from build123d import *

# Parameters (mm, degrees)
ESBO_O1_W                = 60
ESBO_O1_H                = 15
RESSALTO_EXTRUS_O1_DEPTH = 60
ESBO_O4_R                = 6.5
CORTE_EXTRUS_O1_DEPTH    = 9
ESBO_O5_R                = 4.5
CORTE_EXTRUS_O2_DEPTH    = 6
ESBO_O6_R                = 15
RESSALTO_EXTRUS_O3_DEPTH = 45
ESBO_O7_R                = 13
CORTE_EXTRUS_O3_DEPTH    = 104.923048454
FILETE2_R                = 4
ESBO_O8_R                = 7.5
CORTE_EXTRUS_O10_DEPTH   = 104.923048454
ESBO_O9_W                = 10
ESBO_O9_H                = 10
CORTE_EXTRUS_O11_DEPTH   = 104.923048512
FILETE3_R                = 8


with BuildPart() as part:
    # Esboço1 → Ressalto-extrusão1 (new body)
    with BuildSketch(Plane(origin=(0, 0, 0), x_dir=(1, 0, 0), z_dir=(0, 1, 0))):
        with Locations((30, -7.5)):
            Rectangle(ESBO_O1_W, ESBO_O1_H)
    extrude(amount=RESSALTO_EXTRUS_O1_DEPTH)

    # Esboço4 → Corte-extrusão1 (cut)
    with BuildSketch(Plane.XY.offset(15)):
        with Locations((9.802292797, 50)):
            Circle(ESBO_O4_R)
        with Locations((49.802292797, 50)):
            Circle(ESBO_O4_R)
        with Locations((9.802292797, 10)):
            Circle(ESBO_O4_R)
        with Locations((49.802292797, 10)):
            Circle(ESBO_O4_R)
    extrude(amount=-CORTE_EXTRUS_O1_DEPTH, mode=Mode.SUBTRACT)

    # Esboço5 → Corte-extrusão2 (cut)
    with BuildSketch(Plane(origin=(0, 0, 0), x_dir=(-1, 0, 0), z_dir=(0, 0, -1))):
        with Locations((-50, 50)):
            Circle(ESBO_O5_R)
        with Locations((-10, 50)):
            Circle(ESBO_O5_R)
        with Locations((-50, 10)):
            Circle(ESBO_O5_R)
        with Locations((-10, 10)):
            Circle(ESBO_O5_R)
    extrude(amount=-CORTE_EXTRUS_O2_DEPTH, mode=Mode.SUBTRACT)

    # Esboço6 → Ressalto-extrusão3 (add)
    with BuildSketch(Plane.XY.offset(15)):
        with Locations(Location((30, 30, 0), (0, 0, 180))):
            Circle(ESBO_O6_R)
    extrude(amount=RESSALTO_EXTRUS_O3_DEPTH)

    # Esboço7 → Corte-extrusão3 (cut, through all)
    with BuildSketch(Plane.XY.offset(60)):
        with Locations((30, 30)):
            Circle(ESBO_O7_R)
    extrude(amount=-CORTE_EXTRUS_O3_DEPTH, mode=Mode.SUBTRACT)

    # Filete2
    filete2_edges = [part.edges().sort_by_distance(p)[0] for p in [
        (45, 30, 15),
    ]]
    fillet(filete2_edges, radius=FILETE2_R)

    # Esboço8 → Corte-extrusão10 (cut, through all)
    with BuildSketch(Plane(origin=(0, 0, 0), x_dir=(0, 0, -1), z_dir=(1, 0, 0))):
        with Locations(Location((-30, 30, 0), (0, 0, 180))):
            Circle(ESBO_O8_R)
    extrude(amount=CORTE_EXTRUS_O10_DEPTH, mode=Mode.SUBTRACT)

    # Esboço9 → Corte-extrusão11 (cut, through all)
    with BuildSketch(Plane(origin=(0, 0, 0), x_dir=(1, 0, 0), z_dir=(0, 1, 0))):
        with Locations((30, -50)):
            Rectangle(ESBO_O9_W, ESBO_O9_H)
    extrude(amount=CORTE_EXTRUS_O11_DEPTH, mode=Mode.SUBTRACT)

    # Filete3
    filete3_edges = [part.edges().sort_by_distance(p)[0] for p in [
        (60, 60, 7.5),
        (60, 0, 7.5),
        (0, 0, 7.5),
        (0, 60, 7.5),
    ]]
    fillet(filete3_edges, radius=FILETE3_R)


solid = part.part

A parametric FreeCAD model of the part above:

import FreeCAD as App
import Part
import Sketcher

V = App.Vector
Q = App.Units.Quantity


def edges_at(feature, points):
    """Names of the edges that pass closest to the given points."""
    edges = feature.Shape.Edges
    near = lambda p: min(range(len(edges)), key=lambda i: edges[i].distToShape(Part.Vertex(*p))[0])
    return sorted({f"Edge{near(p) + 1}" for p in points})

doc = App.newDocument("Part")
body = doc.addObject("PartDesign::Body", "Body")

sketch1 = body.newObject("Sketcher::SketchObject", "Sketch")
sketch1.AttachmentSupport = (doc.getObject("XZ_Plane"), [""])
sketch1.MapMode = "FlatFace"
sketch1.addGeometry([
    Part.LineSegment(V(0, 0, 0), V(0, 15, 0)),
    Part.LineSegment(V(0, 15, 0), V(60, 15, 0)),
    Part.LineSegment(V(60, 15, 0), V(60, 0, 0)),
    Part.LineSegment(V(60, 0, 0), V(0, 0, 0)),
], False)
sketch1.addConstraint([
    Sketcher.Constraint("Coincident", 0, 2, 1, 1),
    Sketcher.Constraint("Coincident", 1, 2, 2, 1),
    Sketcher.Constraint("Coincident", 2, 2, 3, 1),
    Sketcher.Constraint("Coincident", 3, 2, 0, 1),
    Sketcher.Constraint("Vertical", 0),
    Sketcher.Constraint("Horizontal", 1),
    Sketcher.Constraint("Vertical", 2),
    Sketcher.Constraint("Horizontal", 3),
    Sketcher.Constraint("Coincident", 3, 2, -1, 1),
    Sketcher.Constraint("DistanceX", 1, 1, 1, 2, Q("60 mm")),
    Sketcher.Constraint("DistanceY", 0, 1, 0, 2, Q("15 mm")),
])
pad1 = body.newObject("PartDesign::Pad", "Pad")
pad1.Profile = sketch1
pad1.Length = 60
pad1.Reversed = True

sketch2 = body.newObject("Sketcher::SketchObject", "Sketch001")
sketch2.AttachmentSupport = (doc.getObject("XY_Plane"), [""])
sketch2.MapMode = "FlatFace"
sketch2.AttachmentOffset = App.Placement(V(0, 0, 15), App.Rotation())
sketch2.addGeometry([
    Part.Circle(V(9.802293, 50, 0), V(0, 0, 1), 6.5),
    Part.Circle(V(49.802293, 50, 0), V(0, 0, 1), 6.5),
    Part.Circle(V(9.802293, 10, 0), V(0, 0, 1), 6.5),
    Part.Circle(V(49.802293, 10, 0), V(0, 0, 1), 6.5),
], False)
sketch2.addConstraint([
    Sketcher.Constraint("Equal", 0, 1),
    Sketcher.Constraint("Equal", 1, 2),
    Sketcher.Constraint("Equal", 2, 3),
    Sketcher.Constraint("Horizontal", 0, 3, 1, 3),
    Sketcher.Constraint("Horizontal", 2, 3, 3, 3),
    Sketcher.Constraint("Vertical", 0, 3, 2, 3),
    Sketcher.Constraint("Vertical", 1, 3, 3, 3),
    Sketcher.Constraint("Diameter", 0, Q("13 mm")),
    Sketcher.Constraint("DistanceY", -1, 1, 0, 3, Q("50 mm")),
    Sketcher.Constraint("DistanceY", -1, 1, 2, 3, Q("10 mm")),
    Sketcher.Constraint("DistanceX", 0, 3, 1, 3, Q("40 mm")),
    Sketcher.Constraint("DistanceX", -1, 1, 0, 3, Q("9.802293 mm")),
])
pocket1 = body.newObject("PartDesign::Pocket", "Pocket")
pocket1.Profile = sketch2
pocket1.Length = 9

sketch3 = body.newObject("Sketcher::SketchObject", "Sketch002")
sketch3.AttachmentSupport = (doc.getObject("XY_Plane"), [""])
sketch3.MapMode = "FlatFace"
sketch3.addGeometry([
    Part.Circle(V(50, 50, 0), V(0, 0, 1), 4.5),
    Part.Circle(V(10, 50, 0), V(0, 0, 1), 4.5),
    Part.Circle(V(50, 10, 0), V(0, 0, 1), 4.5),
    Part.Circle(V(10, 10, 0), V(0, 0, 1), 4.5),
], False)
sketch3.addConstraint([
    Sketcher.Constraint("Equal", 0, 1),
    Sketcher.Constraint("Equal", 1, 2),
    Sketcher.Constraint("Equal", 2, 3),
    Sketcher.Constraint("Horizontal", 0, 3, 1, 3),
    Sketcher.Constraint("Horizontal", 2, 3, 3, 3),
    Sketcher.Constraint("Vertical", 0, 3, 2, 3),
    Sketcher.Constraint("Vertical", 1, 3, 3, 3),
    Sketcher.Constraint("Diameter", 0, Q("9 mm")),
    Sketcher.Constraint("DistanceX", -1, 1, 0, 3, Q("50 mm")),
    Sketcher.Constraint("DistanceY", -1, 1, 0, 3, Q("50 mm")),
    Sketcher.Constraint("DistanceX", -1, 1, 1, 3, Q("10 mm")),
    Sketcher.Constraint("DistanceY", -1, 1, 2, 3, Q("10 mm")),
])
pocket2 = body.newObject("PartDesign::Pocket", "Pocket001")
pocket2.Profile = sketch3
pocket2.Length = 6
pocket2.Reversed = True

sketch4 = body.newObject("Sketcher::SketchObject", "Sketch003")
sketch4.AttachmentSupport = (doc.getObject("XY_Plane"), [""])
sketch4.MapMode = "FlatFace"
sketch4.AttachmentOffset = App.Placement(V(0, 0, 15), App.Rotation())
sketch4.addGeometry(Part.Circle(V(30, 30, 0), V(0, 0, 1), 15), False)
sketch4.addConstraint([
    Sketcher.Constraint("Diameter", 0, Q("30 mm")),
    Sketcher.Constraint("DistanceX", -1, 1, 0, 3, Q("30 mm")),
    Sketcher.Constraint("DistanceY", -1, 1, 0, 3, Q("30 mm")),
])
pad2 = body.newObject("PartDesign::Pad", "Pad001")
pad2.Profile = sketch4
pad2.Length = 45

sketch5 = body.newObject("Sketcher::SketchObject", "Sketch004")
sketch5.AttachmentSupport = (doc.getObject("XY_Plane"), [""])
sketch5.MapMode = "FlatFace"
sketch5.AttachmentOffset = App.Placement(V(0, 0, 60), App.Rotation())
sketch5.addGeometry(Part.Circle(V(30, 30, 0), V(0, 0, 1), 13), False)
sketch5.addConstraint([
    Sketcher.Constraint("Diameter", 0, Q("26 mm")),
    Sketcher.Constraint("DistanceX", -1, 1, 0, 3, Q("30 mm")),
    Sketcher.Constraint("DistanceY", -1, 1, 0, 3, Q("30 mm")),
])
pocket3 = body.newObject("PartDesign::Pocket", "Pocket002")
pocket3.Profile = sketch5
pocket3.Type = "ThroughAll"
doc.recompute()

fillet = body.newObject("PartDesign::Fillet", "Fillet")
fillet.Base = (pocket3, edges_at(pocket3, [(45, 30, 15)]))
fillet.Radius = 4

sketch6 = body.newObject("Sketcher::SketchObject", "Sketch005")
sketch6.AttachmentSupport = (doc.getObject("YZ_Plane"), [""])
sketch6.MapMode = "FlatFace"
sketch6.addGeometry(Part.Circle(V(30, 30, 0), V(0, 0, 1), 7.5), False)
sketch6.addConstraint([
    Sketcher.Constraint("Diameter", 0, Q("15 mm")),
    Sketcher.Constraint("DistanceX", -1, 1, 0, 3, Q("30 mm")),
    Sketcher.Constraint("DistanceY", -1, 1, 0, 3, Q("30 mm")),
])
pocket4 = body.newObject("PartDesign::Pocket", "Pocket003")
pocket4.Profile = sketch6
pocket4.Type = "ThroughAll"
pocket4.Reversed = True

sketch7 = body.newObject("Sketcher::SketchObject", "Sketch006")
sketch7.AttachmentSupport = (doc.getObject("XZ_Plane"), [""])
sketch7.MapMode = "FlatFace"
sketch7.addGeometry([
    Part.LineSegment(V(25, 45, 0), V(25, 55, 0)),
    Part.LineSegment(V(25, 55, 0), V(35, 55, 0)),
    Part.LineSegment(V(35, 55, 0), V(35, 45, 0)),
    Part.LineSegment(V(35, 45, 0), V(25, 45, 0)),
], False)
sketch7.addConstraint([
    Sketcher.Constraint("Coincident", 0, 2, 1, 1),
    Sketcher.Constraint("Coincident", 1, 2, 2, 1),
    Sketcher.Constraint("Coincident", 2, 2, 3, 1),
    Sketcher.Constraint("Coincident", 3, 2, 0, 1),
    Sketcher.Constraint("Vertical", 0),
    Sketcher.Constraint("Horizontal", 1),
    Sketcher.Constraint("Vertical", 2),
    Sketcher.Constraint("Horizontal", 3),
    Sketcher.Constraint("Equal", 3, 0),
    Sketcher.Constraint("DistanceX", 1, 1, 1, 2, Q("10 mm")),
    Sketcher.Constraint("DistanceX", -1, 1, 0, 2, Q("25 mm")),
    Sketcher.Constraint("DistanceY", -1, 1, 0, 2, Q("55 mm")),
])
pocket5 = body.newObject("PartDesign::Pocket", "Pocket004")
pocket5.Profile = sketch7
pocket5.Type = "ThroughAll"
doc.recompute()

fillet2 = body.newObject("PartDesign::Fillet", "Fillet001")
fillet2.Base = (pocket5, edges_at(pocket5, [
    (60, 60, 7.5),
    (60, 0, 7.5),
    (0, 0, 7.5),
    (0, 60, 7.5),
]))
fillet2.Radius = 8

doc.recompute()
